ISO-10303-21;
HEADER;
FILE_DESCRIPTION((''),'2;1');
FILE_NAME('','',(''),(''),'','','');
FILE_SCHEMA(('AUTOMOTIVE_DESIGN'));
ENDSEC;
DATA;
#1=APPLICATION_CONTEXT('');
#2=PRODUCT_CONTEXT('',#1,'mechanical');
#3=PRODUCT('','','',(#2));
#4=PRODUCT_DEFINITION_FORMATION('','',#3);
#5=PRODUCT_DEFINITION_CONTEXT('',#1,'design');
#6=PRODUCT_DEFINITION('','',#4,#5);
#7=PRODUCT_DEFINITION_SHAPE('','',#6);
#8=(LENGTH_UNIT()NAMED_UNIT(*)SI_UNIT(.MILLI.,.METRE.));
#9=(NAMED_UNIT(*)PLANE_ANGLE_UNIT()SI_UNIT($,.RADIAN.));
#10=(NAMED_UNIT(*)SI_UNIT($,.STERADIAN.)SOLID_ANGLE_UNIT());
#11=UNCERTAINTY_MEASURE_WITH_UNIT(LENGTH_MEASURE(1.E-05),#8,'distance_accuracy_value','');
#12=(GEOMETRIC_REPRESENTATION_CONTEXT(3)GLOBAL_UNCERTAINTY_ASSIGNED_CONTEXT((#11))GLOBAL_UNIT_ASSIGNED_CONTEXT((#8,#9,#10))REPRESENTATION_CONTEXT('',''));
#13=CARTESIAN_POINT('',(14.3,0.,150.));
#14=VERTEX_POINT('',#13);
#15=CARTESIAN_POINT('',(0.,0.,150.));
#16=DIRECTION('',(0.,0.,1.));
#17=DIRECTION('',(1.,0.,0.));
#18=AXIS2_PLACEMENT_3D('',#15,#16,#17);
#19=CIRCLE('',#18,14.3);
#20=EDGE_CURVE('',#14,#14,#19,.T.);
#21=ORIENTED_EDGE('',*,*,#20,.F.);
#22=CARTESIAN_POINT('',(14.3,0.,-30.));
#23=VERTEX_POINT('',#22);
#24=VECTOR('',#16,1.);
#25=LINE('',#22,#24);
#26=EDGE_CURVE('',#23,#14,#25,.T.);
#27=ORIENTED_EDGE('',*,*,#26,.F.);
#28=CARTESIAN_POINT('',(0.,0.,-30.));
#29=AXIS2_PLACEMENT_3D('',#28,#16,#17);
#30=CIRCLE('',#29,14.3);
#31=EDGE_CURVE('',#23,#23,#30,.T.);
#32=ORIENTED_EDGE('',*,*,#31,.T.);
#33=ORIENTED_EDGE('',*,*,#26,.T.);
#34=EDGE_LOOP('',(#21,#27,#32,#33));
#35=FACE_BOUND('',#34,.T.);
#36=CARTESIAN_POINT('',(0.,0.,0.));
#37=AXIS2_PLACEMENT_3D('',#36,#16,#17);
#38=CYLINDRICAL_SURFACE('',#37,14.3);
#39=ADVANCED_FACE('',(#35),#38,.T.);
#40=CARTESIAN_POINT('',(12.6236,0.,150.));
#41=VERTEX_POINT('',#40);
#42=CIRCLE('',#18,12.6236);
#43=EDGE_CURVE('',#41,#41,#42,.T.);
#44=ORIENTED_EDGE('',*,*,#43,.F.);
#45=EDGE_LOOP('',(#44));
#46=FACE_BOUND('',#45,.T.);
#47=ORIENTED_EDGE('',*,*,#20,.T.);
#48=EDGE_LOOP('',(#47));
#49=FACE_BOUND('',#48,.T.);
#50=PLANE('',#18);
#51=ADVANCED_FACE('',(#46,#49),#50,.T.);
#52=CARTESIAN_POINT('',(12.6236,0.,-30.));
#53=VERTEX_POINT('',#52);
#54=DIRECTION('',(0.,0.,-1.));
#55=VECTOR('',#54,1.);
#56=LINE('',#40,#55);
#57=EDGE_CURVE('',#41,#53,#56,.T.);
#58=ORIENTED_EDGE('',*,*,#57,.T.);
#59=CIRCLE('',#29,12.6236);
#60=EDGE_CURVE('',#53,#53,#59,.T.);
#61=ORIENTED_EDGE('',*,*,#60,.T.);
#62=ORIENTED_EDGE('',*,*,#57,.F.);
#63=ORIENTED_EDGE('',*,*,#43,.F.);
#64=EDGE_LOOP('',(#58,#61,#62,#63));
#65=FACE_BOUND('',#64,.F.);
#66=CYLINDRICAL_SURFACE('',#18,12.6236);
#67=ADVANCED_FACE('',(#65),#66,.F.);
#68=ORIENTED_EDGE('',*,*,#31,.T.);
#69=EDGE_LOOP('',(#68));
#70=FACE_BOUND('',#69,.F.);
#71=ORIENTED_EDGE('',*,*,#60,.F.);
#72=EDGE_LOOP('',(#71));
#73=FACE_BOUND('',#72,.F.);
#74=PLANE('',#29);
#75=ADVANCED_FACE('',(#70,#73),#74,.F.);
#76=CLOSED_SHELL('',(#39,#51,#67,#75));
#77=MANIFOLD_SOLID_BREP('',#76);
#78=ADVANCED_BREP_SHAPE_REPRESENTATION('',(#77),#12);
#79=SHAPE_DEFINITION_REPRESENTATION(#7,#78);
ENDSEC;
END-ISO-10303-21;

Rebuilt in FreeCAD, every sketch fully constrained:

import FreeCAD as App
import Part
import Sketcher

V = App.Vector

doc = App.newDocument("Part")
body = doc.addObject("PartDesign::Body", "Body")

sketch1 = body.newObject("Sketcher::SketchObject", "Sketch")
sketch1.AttachmentSupport = (doc.getObject("XY_Plane"), [""])
sketch1.MapMode = "FlatFace"
sketch1.addGeometry(Part.Circle(V(0, 0, 0), V(0, 0, 1), 14), False)
sketch1.addConstraint(Sketcher.Constraint("Coincident", 0, 3, -1, 1))
sketch1.addConstraint(Sketcher.Constraint("Diameter", 0, 28.6))
pad1 = body.newObject("PartDesign::Pad", "Pad")
pad1.Profile = sketch1
pad1.Type = "TwoLengths"
pad1.Length = 150
pad1.Length2 = 30

sketch2 = body.newObject("Sketcher::SketchObject", "Sketch001")
sketch2.AttachmentSupport = (doc.getObject("XY_Plane"), [""])
sketch2.MapMode = "FlatFace"
sketch2.AttachmentOffset = App.Placement(V(0, 0, 150), App.Rotation())
sketch2.addGeometry(Part.Circle(V(0, 0, 0), V(0, 0, 1), 13), False)
sketch2.addConstraint(Sketcher.Constraint("Coincident", 0, 3, -1, 1))
sketch2.addConstraint(Sketcher.Constraint("Diameter", 0, 25.2472))
pocket1 = body.newObject("PartDesign::Pocket", "Pocket")
pocket1.Profile = sketch2
pocket1.Type = "ThroughAll"

doc.recompute()
